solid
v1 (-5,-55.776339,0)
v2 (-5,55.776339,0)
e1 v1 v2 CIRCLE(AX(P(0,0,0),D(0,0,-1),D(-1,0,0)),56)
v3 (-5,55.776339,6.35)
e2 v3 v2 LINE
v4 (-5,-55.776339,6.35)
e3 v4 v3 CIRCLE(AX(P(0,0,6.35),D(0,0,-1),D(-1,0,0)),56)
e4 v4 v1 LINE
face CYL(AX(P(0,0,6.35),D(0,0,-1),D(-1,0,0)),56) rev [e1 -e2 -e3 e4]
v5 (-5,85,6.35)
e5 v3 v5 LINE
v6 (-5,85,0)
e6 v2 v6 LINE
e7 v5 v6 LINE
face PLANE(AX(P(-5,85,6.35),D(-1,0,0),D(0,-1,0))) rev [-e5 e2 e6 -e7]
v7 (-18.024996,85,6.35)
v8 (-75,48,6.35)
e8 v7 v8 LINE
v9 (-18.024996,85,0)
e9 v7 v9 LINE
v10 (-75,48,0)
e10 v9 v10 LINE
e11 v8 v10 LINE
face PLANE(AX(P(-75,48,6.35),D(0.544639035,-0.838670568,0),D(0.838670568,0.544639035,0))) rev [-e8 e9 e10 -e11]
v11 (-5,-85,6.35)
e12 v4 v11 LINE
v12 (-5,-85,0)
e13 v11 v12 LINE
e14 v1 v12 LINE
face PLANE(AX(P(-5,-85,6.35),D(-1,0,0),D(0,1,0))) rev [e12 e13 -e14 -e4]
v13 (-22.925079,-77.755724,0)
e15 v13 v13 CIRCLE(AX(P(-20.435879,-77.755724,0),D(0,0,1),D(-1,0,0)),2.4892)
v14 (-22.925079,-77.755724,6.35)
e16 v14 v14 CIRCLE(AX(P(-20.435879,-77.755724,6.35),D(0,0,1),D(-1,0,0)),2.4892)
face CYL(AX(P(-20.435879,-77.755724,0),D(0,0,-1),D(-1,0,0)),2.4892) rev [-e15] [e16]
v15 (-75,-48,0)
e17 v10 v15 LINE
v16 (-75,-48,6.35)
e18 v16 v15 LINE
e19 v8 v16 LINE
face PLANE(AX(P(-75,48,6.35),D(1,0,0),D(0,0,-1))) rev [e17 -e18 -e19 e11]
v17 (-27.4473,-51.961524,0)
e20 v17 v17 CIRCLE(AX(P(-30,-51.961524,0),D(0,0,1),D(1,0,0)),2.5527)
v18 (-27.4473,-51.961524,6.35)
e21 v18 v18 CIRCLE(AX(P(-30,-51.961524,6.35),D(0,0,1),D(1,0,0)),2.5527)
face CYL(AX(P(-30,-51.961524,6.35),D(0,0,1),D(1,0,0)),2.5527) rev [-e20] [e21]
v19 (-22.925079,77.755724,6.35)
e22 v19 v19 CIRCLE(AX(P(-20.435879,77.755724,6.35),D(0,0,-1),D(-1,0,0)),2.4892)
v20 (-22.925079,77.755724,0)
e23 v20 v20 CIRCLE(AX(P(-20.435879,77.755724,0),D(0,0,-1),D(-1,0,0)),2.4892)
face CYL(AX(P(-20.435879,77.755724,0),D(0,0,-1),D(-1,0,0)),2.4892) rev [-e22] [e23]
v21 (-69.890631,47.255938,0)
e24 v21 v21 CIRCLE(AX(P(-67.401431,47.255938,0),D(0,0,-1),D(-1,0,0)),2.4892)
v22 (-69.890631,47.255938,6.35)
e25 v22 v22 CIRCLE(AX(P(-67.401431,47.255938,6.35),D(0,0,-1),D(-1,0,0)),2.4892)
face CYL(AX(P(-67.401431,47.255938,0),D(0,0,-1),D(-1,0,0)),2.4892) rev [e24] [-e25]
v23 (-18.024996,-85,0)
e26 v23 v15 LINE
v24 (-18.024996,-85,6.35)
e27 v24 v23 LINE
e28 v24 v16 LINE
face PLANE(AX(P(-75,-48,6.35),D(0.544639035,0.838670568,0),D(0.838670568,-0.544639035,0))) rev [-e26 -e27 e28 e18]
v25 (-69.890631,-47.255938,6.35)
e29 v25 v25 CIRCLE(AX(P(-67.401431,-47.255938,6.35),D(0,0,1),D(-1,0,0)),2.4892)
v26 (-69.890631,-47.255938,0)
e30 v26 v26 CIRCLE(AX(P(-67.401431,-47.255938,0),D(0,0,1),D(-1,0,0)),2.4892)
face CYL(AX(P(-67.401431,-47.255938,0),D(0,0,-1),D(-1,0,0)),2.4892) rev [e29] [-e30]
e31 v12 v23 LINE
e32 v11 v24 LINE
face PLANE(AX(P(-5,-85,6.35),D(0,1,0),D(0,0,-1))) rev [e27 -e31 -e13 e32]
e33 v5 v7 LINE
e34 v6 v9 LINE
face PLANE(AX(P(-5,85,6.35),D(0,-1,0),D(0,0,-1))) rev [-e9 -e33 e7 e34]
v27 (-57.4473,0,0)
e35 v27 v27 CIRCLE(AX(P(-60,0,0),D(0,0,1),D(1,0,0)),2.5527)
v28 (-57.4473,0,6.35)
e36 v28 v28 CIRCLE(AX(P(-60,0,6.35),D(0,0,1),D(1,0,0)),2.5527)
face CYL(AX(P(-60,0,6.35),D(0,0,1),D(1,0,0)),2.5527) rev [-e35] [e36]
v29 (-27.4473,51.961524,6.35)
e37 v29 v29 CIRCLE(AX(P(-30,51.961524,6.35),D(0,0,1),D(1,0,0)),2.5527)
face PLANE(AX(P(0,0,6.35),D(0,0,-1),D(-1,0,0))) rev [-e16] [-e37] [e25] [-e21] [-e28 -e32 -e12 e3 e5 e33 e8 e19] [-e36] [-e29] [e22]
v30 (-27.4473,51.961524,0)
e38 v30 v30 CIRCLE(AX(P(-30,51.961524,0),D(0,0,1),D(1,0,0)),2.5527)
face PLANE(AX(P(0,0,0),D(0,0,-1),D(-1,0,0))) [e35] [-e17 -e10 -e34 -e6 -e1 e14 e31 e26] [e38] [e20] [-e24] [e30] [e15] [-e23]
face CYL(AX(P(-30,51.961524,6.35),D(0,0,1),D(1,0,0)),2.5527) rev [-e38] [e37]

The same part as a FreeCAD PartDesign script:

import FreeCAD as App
import Part
import Sketcher
from FreeCAD import Vector
Q = App.Units.Quantity

doc = App.newDocument("Part")
body = doc.addObject("PartDesign::Body", "Body")

# Sketch on XY plane
sketch1 = body.newObject("Sketcher::SketchObject", "Sketch")
sketch1.AttachmentSupport = (doc.getObject("XY_Plane"), [""])
sketch1.MapMode = "FlatFace"
sketch1.addGeometry([
    Part.LineSegment(Vector(-18, 85, 0), Vector(-75, 48, 0)),  # 0
    Part.LineSegment(Vector(-75, 48, 0), Vector(-75, 0, 0)),  # 1
    Part.LineSegment(Vector(-75, 0, 0), Vector(-5, 0, 0)),  # 2
    Part.LineSegment(Vector(-5, 0, 0), Vector(-5, 85, 0)),  # 3
    Part.LineSegment(Vector(-5, 85, 0), Vector(-18, 85, 0)),  # 4
], False)
sketch1.addConstraint([
    Sketcher.Constraint("Coincident", 0, 2, 1, 1),
    Sketcher.Constraint("Coincident", 1, 2, 2, 1),
    Sketcher.Constraint("Coincident", 2, 2, 3, 1),
    Sketcher.Constraint("Coincident", 3, 2, 4, 1),
    Sketcher.Constraint("Coincident", 4, 2, 0, 1),
    Sketcher.Constraint("Vertical", 1),
    Sketcher.Constraint("Horizontal", 2),
    Sketcher.Constraint("Vertical", 3),
    Sketcher.Constraint("Horizontal", 4),
    Sketcher.Constraint("PointOnObject", 1, 2, -1),
    Sketcher.Constraint("DistanceX", 2, 1, 2, 2, Q("70 mm")),
    Sketcher.Constraint("DistanceY", 1, 2, 1, 1, Q("48 mm")),
    Sketcher.Constraint("DistanceY", 3, 1, 3, 2, Q("85 mm")),
    Sketcher.Constraint("Angle", 0, Q("-147 deg")),
    Sketcher.Constraint("DistanceX", 0, 2, -1, 1, Q("75 mm")),
])
pad1 = body.newObject("PartDesign::Pad", "Pad")
pad1.Profile = sketch1
pad1.Length = 6.35

# Sketch on XY plane
sketch2 = body.newObject("Sketcher::SketchObject", "Sketch001")
sketch2.AttachmentSupport = (doc.getObject("XY_Plane"), [""])
sketch2.MapMode = "FlatFace"
sketch2.addGeometry([
    Part.Circle(Vector(-20.4, 77.8, 0), Vector(0, 0, 1), 2.5),
    Part.Circle(Vector(-67.4, 47.3, 0), Vector(0, 0, 1), 2.5),
], False)
sketch2.addConstraint([
    Sketcher.Constraint("Equal", 0, 1),
    Sketcher.Constraint("Diameter", 0, Q("4.9784 mm")),
    Sketcher.Constraint("DistanceX", 0, 3, -1, 1, Q("20.435879 mm")),
    Sketcher.Constraint("DistanceX", 1, 3, -1, 1, Q("67.401431 mm")),
    Sketcher.Constraint("DistanceY", -1, 1, 1, 3, Q("47.255938 mm")),
    Sketcher.Constraint("DistanceY", -1, 1, 0, 3, Q("77.755724 mm")),
])
doc.recompute()
hole = body.newObject("PartDesign::Hole", "Hole")
hole.Profile = sketch2
hole.ThreadType = "None"
hole.Diameter = 4.9784
hole.DepthType = "Dimension"
hole.Depth = 135.89
hole.DrillPoint = "Angled"
hole.DrillPointAngle = 118
hole.Reversed = True

# Sketch on XY plane
sketch3 = body.newObject("Sketcher::SketchObject", "Sketch002")
sketch3.AttachmentSupport = (doc.getObject("XY_Plane"), [""])
sketch3.MapMode = "FlatFace"
sketch3.addGeometry(Part.Circle(Vector(0, 0, 0), Vector(0, 0, 1), 56), False)
sketch3.addConstraint([
    Sketcher.Constraint("Coincident", 0, 3, -1, 1),
    Sketcher.Constraint("Diameter", 0, Q("112 mm")),
])
pocket1 = body.newObject("PartDesign::Pocket", "Pocket")
pocket1.Profile = sketch3
pocket1.Type = "ThroughAll"
pocket1.Reversed = True
body2 = doc.addObject("PartDesign::Body", "Body001")
doc.recompute()

body2.BaseFeature = body
doc.recompute()

mirroring = doc.addObject("Part::Mirroring", "Mirroring")
mirroring.Source = body
mirroring.Base = Vector(0, 0, 0)
mirroring.Normal = Vector(0, 1, 0)
body3 = doc.addObject("PartDesign::Body", "Body002")
body3.BaseFeature = mirroring
boolean = body2.newObject("PartDesign::Boolean", "Boolean")
boolean.Type = "Fuse"
boolean.addObjects([body3])
doc.recompute()

# Sketch on XY plane
sketch4 = body2.newObject("Sketcher::SketchObject", "Sketch003")
sketch4.AttachmentSupport = (doc.getObject("XY_Plane001"), [""])
sketch4.MapMode = "FlatFace"
sketch4.AttachmentOffset = App.Placement(Vector(0, 0, 6.35), App.Rotation())
sketch4.addGeometry(Part.Circle(Vector(-30, 52, 0), Vector(0, 0, 1), 2.6), False)
sketch4.addConstraint([
    Sketcher.Constraint("DistanceX", 0, 3, -1, 1, Q("30 mm")),
    Sketcher.Constraint("Diameter", 0, Q("5.1054 mm")),
    Sketcher.Constraint("DistanceY", -1, 1, 0, 3, Q("51.961524 mm")),
])
doc.recompute()
hole2 = body2.newObject("PartDesign::Hole", "Hole001")
hole2.Profile = sketch4
hole2.ThreadType = "None"
hole2.Diameter = 5.1054
hole2.DepthType = "ThroughAll"
doc.recompute()

polarpattern = body2.newObject("PartDesign::PolarPattern", "PolarPattern")
polarpattern.Originals = [hole2]
polarpattern.Axis = (doc.getObject("Z_Axis001"), [""])
polarpattern.Angle = 120
polarpattern.Occurrences = 3
body2.Tip = polarpattern
mirroring.Visibility = False

doc.recompute()
